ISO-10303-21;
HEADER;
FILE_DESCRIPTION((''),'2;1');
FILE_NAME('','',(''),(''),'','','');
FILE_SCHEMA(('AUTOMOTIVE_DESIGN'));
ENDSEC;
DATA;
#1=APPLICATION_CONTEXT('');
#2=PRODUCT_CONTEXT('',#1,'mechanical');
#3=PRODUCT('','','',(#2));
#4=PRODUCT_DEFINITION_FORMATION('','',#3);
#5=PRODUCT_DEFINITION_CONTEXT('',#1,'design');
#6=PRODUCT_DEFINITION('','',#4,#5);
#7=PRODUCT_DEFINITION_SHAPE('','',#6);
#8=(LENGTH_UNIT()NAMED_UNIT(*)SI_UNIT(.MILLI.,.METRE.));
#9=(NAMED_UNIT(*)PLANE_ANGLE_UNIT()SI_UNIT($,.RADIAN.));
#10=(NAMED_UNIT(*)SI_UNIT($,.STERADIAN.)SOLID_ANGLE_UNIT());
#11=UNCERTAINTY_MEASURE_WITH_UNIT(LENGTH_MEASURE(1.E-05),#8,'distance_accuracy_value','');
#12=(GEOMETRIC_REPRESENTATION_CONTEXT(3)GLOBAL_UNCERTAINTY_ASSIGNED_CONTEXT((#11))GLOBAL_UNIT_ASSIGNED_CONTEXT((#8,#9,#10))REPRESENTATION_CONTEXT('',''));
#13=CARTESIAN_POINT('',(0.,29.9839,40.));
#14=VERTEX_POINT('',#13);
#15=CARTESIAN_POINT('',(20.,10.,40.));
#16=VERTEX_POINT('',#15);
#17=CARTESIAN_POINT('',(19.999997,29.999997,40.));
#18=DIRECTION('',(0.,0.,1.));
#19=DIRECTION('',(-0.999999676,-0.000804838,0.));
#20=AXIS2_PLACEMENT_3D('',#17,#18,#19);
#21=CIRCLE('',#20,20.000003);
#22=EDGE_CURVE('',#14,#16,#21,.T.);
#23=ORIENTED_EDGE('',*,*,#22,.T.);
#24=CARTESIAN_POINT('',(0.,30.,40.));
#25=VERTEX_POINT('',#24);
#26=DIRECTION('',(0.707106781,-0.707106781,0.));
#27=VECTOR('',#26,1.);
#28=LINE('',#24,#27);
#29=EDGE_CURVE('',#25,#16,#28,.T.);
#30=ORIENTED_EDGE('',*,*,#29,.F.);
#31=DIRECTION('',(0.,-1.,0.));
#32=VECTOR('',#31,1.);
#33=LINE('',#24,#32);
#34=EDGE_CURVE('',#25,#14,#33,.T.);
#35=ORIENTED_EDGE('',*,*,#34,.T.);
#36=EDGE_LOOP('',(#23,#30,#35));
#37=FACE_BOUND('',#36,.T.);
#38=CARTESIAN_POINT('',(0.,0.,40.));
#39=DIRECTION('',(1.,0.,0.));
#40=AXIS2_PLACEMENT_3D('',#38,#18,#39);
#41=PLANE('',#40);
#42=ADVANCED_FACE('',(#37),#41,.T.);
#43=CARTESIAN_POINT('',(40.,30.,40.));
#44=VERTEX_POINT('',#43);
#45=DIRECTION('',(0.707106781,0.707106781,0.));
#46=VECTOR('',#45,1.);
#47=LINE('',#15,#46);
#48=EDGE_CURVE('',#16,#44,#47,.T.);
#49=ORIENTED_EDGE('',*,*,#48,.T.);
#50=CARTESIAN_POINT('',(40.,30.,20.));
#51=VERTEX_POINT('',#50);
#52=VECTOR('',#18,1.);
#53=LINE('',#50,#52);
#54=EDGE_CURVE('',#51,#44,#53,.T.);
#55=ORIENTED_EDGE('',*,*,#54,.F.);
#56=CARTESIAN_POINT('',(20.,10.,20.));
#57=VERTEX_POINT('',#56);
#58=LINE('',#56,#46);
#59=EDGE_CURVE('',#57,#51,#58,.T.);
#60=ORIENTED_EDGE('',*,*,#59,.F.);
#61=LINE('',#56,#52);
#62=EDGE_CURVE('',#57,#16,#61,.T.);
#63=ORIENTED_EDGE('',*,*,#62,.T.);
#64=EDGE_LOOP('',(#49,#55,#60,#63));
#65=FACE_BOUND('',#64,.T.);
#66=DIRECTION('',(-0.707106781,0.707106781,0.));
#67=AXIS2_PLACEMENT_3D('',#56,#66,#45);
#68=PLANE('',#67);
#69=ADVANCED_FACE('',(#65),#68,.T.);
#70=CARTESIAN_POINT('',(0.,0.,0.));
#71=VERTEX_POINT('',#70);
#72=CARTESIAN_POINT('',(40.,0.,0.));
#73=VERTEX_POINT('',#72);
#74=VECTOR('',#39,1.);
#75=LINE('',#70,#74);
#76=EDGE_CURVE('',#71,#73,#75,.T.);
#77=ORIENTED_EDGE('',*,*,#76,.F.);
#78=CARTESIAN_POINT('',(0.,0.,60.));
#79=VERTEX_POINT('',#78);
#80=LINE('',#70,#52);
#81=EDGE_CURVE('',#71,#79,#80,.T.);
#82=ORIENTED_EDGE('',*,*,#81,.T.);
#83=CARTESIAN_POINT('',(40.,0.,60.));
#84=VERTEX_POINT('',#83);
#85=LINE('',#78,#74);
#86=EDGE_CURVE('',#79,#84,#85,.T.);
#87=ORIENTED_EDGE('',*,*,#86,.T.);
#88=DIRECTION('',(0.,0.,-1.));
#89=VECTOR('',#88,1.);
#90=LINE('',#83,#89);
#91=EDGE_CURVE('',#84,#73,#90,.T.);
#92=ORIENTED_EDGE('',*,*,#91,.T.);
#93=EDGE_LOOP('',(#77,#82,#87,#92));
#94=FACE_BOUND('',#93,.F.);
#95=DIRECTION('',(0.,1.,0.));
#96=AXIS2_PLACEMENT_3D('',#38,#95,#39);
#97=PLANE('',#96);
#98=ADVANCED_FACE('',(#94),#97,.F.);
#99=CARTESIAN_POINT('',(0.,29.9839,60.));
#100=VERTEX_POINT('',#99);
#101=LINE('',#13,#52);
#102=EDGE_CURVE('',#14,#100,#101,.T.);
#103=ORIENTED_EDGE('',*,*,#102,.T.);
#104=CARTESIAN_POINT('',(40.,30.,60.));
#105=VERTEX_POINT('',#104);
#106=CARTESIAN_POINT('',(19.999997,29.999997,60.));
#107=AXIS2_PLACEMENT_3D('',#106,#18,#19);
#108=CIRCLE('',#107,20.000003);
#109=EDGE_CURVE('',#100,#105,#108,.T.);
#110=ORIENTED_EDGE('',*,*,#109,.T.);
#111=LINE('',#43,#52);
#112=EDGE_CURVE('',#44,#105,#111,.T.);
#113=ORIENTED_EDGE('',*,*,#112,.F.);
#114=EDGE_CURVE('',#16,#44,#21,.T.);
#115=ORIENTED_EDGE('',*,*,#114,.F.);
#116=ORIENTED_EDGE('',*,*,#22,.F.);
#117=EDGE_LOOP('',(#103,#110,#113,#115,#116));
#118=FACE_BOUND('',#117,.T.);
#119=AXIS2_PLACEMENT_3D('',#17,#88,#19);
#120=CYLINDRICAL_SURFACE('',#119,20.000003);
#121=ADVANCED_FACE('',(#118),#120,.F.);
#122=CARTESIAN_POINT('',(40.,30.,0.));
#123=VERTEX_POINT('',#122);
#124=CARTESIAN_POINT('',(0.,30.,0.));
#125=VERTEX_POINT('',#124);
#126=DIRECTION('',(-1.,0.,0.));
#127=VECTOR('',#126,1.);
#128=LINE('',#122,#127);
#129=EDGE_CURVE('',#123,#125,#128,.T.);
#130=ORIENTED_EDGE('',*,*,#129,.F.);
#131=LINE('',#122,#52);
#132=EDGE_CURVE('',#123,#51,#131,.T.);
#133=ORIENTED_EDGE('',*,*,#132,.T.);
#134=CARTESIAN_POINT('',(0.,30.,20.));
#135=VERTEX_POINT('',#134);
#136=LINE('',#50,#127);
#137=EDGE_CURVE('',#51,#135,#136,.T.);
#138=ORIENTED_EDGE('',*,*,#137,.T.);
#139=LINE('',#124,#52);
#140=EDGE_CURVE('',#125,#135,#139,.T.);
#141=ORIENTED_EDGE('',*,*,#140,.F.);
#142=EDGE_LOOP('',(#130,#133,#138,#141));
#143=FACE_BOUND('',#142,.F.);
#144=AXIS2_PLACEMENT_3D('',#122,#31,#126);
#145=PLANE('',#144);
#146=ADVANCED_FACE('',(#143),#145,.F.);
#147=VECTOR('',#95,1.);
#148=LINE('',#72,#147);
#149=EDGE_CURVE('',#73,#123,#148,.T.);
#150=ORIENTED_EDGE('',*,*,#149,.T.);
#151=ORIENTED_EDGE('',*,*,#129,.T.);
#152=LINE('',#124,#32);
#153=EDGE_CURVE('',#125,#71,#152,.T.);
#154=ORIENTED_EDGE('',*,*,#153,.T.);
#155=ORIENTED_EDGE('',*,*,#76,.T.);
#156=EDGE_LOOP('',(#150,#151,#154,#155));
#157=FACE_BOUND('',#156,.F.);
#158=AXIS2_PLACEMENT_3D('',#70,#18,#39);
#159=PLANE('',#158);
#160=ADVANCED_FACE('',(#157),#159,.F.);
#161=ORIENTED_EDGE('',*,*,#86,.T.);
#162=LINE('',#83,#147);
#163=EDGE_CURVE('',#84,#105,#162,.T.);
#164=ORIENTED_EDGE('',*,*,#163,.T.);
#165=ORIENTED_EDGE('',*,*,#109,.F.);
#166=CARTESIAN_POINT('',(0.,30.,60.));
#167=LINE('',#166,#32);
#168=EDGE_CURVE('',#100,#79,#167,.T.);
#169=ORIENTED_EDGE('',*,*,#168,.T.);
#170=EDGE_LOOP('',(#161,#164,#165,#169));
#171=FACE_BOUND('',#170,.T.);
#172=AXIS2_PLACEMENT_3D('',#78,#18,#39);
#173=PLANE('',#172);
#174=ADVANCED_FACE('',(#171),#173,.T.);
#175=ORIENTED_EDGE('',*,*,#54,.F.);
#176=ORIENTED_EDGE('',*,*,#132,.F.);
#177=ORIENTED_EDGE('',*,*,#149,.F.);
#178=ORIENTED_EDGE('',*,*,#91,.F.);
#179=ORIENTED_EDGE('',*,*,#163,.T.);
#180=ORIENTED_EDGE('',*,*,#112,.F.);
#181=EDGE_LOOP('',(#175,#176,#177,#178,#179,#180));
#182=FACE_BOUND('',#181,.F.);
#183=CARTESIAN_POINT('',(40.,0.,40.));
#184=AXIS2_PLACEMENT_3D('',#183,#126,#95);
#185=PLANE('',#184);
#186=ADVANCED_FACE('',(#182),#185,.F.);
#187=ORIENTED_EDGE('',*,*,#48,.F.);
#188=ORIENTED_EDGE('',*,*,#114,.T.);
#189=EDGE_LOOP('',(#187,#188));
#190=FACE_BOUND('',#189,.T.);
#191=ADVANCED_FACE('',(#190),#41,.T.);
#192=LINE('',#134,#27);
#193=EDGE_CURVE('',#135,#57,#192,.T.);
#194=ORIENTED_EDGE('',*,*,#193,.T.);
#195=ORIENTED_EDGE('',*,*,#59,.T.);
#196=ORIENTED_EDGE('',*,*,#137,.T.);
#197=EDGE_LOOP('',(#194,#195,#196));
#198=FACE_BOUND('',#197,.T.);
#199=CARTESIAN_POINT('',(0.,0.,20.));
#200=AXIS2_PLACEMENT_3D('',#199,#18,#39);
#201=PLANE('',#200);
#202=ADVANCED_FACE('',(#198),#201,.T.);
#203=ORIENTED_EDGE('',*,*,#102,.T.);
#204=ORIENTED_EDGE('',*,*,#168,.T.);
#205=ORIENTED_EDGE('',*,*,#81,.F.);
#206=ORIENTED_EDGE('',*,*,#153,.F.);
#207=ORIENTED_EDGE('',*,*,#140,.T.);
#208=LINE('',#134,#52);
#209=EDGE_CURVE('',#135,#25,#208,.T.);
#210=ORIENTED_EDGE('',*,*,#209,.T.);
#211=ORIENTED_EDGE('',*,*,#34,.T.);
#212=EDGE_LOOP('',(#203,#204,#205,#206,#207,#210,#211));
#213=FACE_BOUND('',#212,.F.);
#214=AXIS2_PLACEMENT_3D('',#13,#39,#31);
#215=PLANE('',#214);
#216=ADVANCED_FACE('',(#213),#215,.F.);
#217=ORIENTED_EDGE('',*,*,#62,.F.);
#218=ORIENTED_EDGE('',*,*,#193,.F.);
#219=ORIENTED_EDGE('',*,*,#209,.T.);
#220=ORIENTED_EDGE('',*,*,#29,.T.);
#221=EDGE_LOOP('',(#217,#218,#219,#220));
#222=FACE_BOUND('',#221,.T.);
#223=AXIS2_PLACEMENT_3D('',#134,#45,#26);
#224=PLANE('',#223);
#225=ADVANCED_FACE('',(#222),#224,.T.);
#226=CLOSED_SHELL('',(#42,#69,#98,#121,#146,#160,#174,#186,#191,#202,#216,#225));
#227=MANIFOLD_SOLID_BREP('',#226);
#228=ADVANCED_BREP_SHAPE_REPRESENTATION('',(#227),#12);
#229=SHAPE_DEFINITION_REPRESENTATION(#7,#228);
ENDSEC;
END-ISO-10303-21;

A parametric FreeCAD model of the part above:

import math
import FreeCAD as App
import Part
import Sketcher
Q = App.Units.Quantity

doc = App.newDocument("Part")
body = doc.addObject("PartDesign::Body", "Body")

# Sketch on XY plane
sketch1 = body.newObject("Sketcher::SketchObject", "Sketch")
sketch1.AttachmentSupport = (doc.getObject("XY_Plane"), [""])
sketch1.MapMode = "FlatFace"
sketch1.addGeometry(Part.LineSegment(App.Vector(0, 30, 0), App.Vector(0, 0, 0)), False)
sketch1.addGeometry(Part.LineSegment(App.Vector(0, 0, 0), App.Vector(40, 0, 0)), False)
sketch1.addGeometry(Part.LineSegment(App.Vector(40, 0, 0), App.Vector(40, 30, 0)), False)
sketch1.addGeometry(Part.LineSegment(App.Vector(40, 30, 0), App.Vector(0, 30, 0)), False)
sketch1.addConstraint(Sketcher.Constraint("Coincident", 0, 2, 1, 1))
sketch1.addConstraint(Sketcher.Constraint("Coincident", 1, 2, 2, 1))
sketch1.addConstraint(Sketcher.Constraint("Coincident", 2, 2, 3, 1))
sketch1.addConstraint(Sketcher.Constraint("Coincident", 3, 2, 0, 1))
sketch1.addConstraint(Sketcher.Constraint("Vertical", 0))
sketch1.addConstraint(Sketcher.Constraint("Horizontal", 1))
sketch1.addConstraint(Sketcher.Constraint("Vertical", 2))
sketch1.addConstraint(Sketcher.Constraint("Horizontal", 3))
sketch1.addConstraint(Sketcher.Constraint("Coincident", 0, 2, -1, 1))
sketch1.addConstraint(Sketcher.Constraint("DistanceX", 1, 1, 1, 2, Q("40 mm")))
sketch1.addConstraint(Sketcher.Constraint("DistanceY", 0, 2, 0, 1, Q("30 mm")))
pad1 = body.newObject("PartDesign::Pad", "Pad")
pad1.Profile = sketch1
pad1.Length = 20

# Sketch on XY plane
sketch2 = body.newObject("Sketcher::SketchObject", "Sketch001")
sketch2.AttachmentSupport = (doc.getObject("XY_Plane"), [""])
sketch2.MapMode = "FlatFace"
sketch2.AttachmentOffset = App.Placement(App.Vector(0, 0, 20), App.Rotation())
sketch2.addGeometry(Part.LineSegment(App.Vector(20, 10, 0), App.Vector(0, 30, 0)), False)
sketch2.addGeometry(Part.LineSegment(App.Vector(0, 30, 0), App.Vector(0, 0, 0)), False)
sketch2.addGeometry(Part.LineSegment(App.Vector(0, 0, 0), App.Vector(40, 0, 0)), False)
sketch2.addGeometry(Part.LineSegment(App.Vector(40, 0, 0), App.Vector(40, 30, 0)), False)
sketch2.addGeometry(Part.LineSegment(App.Vector(40, 30, 0), App.Vector(20, 10, 0)), False)
sketch2.addConstraint(Sketcher.Constraint("Coincident", 0, 2, 1, 1))
sketch2.addConstraint(Sketcher.Constraint("Coincident", 1, 2, 2, 1))
sketch2.addConstraint(Sketcher.Constraint("Coincident", 2, 2, 3, 1))
sketch2.addConstraint(Sketcher.Constraint("Coincident", 3, 2, 4, 1))
sketch2.addConstraint(Sketcher.Constraint("Coincident", 4, 2, 0, 1))
sketch2.addConstraint(Sketcher.Constraint("Vertical", 1))
sketch2.addConstraint(Sketcher.Constraint("Horizontal", 2))
sketch2.addConstraint(Sketcher.Constraint("Vertical", 3))
sketch2.addConstraint(Sketcher.Constraint("Coincident", 1, 2, -1, 1))
sketch2.addConstraint(Sketcher.Constraint("Perpendicular", 0, 4))
sketch2.addConstraint(Sketcher.Constraint("Horizontal", 0, 2, 3, 2))
sketch2.addConstraint(Sketcher.Constraint("Equal", 0, 4))
sketch2.addConstraint(Sketcher.Constraint("DistanceX", -1, 1, 4, 2, Q("20 mm")))
sketch2.addConstraint(Sketcher.Constraint("DistanceY", 1, 2, 1, 1, Q("30 mm")))
pad2 = body.newObject("PartDesign::Pad", "Pad001")
pad2.Profile = sketch2
pad2.Length = 20

# Sketch on XY plane
sketch3 = body.newObject("Sketcher::SketchObject", "Sketch002")
sketch3.AttachmentSupport = (doc.getObject("XY_Plane"), [""])
sketch3.MapMode = "FlatFace"
sketch3.AttachmentOffset = App.Placement(App.Vector(0, 0, 40), App.Rotation())
sketch3.addGeometry(Part.ArcOfCircle(Part.Circle(App.Vector(20, 30, 0), App.Vector(0, 0, 1), 20), math.radians(-180), math.radians(0)), False)
sketch3.addGeometry(Part.LineSegment(App.Vector(0, 30, 0), App.Vector(0, 0, 0)), False)
sketch3.addGeometry(Part.LineSegment(App.Vector(0, 0, 0), App.Vector(40, 0, 0)), False)
sketch3.addGeometry(Part.LineSegment(App.Vector(40, 0, 0), App.Vector(40, 30, 0)), False)
sketch3.addConstraint(Sketcher.Constraint("Coincident", 0, 1, 1, 1))
sketch3.addConstraint(Sketcher.Constraint("Coincident", 1, 2, 2, 1))
sketch3.addConstraint(Sketcher.Constraint("Coincident", 2, 2, 3, 1))
sketch3.addConstraint(Sketcher.Constraint("Tangent", 3, 2, 0, 2))
sketch3.addConstraint(Sketcher.Constraint("Vertical", 1))
sketch3.addConstraint(Sketcher.Constraint("Horizontal", 2))
sketch3.addConstraint(Sketcher.Constraint("Vertical", 3))
sketch3.addConstraint(Sketcher.Constraint("Coincident", 1, 2, -1, 1))
sketch3.addConstraint(Sketcher.Constraint("Radius", 0, Q("20 mm")))
sketch3.addConstraint(Sketcher.Constraint("DistanceY", 3, 1, 3, 2, Q("30 mm")))
sketch3.addConstraint(Sketcher.Constraint("DistanceY", 1, 2, 1, 1, Q("29.984 mm")))
pad3 = body.newObject("PartDesign::Pad", "Pad002")
pad3.Profile = sketch3
pad3.Length = 20

doc.recompute()
